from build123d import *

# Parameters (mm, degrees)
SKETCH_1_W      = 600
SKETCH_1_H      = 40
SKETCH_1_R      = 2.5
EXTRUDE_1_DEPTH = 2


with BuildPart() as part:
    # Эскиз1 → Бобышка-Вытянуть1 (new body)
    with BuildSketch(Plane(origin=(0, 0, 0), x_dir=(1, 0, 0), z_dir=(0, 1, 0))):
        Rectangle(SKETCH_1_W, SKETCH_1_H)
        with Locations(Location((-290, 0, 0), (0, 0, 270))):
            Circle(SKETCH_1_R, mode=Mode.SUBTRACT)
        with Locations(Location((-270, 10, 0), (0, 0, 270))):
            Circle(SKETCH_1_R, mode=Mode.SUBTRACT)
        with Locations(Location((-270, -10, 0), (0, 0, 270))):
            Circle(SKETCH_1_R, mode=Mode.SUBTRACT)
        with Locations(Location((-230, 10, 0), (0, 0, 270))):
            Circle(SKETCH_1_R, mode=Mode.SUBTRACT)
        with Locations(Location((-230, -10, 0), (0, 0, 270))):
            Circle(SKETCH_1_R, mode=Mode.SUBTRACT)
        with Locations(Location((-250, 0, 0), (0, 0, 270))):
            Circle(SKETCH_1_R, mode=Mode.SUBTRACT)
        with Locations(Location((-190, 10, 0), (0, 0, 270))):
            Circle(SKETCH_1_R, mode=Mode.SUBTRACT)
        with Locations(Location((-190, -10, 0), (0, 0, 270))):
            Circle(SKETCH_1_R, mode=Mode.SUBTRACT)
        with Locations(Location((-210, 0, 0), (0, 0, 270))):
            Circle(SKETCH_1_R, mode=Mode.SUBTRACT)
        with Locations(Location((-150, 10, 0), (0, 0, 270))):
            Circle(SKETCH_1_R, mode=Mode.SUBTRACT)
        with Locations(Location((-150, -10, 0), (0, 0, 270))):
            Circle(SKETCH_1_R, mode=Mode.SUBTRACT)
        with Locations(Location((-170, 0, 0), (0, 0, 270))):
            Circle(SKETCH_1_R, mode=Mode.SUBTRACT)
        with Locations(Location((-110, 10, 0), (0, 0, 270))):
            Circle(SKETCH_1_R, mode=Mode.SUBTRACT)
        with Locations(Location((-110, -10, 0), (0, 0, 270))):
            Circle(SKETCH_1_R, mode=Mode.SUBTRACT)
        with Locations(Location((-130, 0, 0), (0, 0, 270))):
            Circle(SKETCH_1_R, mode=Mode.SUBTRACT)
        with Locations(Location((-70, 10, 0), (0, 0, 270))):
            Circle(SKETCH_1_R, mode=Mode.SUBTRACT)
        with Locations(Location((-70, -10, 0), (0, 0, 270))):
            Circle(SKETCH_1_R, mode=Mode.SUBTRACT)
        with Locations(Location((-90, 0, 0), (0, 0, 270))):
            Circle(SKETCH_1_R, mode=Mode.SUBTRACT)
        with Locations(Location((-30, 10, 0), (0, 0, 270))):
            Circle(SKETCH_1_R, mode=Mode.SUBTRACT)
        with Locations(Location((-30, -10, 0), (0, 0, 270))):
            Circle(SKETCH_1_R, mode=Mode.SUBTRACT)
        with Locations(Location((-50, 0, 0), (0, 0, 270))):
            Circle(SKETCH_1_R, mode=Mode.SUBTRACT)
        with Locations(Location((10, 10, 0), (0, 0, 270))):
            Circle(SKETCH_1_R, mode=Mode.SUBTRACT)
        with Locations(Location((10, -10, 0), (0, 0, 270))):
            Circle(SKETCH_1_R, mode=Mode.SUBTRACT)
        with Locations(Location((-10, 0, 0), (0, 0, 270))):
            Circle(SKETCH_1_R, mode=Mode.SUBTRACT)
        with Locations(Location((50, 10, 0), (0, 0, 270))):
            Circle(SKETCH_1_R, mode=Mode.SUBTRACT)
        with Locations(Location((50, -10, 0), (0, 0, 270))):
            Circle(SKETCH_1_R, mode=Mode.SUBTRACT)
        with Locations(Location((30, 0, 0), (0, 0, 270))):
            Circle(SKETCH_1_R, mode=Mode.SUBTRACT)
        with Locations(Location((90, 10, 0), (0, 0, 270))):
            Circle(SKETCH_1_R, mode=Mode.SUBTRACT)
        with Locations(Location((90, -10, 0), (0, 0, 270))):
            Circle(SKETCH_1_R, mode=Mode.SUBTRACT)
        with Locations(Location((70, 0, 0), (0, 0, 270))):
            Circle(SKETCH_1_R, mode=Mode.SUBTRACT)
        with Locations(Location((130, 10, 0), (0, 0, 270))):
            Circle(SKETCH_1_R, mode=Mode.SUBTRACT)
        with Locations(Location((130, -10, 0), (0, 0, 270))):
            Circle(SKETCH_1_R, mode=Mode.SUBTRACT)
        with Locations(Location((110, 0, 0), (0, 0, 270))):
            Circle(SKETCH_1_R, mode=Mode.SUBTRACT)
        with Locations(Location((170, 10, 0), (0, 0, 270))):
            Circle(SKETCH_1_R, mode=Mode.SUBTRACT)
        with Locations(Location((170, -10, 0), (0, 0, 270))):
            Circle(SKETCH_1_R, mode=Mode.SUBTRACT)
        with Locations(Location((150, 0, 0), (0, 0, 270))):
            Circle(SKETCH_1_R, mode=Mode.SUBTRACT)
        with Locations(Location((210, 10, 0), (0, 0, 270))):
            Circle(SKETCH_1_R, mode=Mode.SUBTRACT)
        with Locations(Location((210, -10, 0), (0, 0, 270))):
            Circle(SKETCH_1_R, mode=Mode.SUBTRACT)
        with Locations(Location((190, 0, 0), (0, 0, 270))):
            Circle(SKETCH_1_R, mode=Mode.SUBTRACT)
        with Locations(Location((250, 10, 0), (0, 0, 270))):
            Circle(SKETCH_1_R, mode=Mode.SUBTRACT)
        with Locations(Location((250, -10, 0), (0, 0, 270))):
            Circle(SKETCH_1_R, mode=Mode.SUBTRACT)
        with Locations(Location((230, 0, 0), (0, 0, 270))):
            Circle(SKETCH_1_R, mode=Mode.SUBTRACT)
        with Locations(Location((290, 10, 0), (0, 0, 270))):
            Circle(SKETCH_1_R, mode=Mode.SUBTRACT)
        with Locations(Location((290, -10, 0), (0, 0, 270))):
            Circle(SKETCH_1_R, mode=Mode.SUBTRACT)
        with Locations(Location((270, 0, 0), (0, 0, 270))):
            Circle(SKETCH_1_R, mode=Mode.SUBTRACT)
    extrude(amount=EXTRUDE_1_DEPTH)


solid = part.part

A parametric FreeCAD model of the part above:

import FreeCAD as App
import Part
import Sketcher

V = App.Vector


def add_polygon(sketch, points):
    """Adds a closed chain of lines whose ends are joined by coincident constraints."""
    first, n = sketch.GeometryCount, len(points)
    for a, b in zip(points, points[1:] + points[:1]):
        sketch.addGeometry(Part.LineSegment(App.Vector(*a, 0), App.Vector(*b, 0)), False)
    for i in range(n):
        sketch.addConstraint(Sketcher.Constraint("Coincident", first + i, 2, first + (i + 1) % n, 1))

doc = App.newDocument("Part")
params = doc.addObject("Spreadsheet::Sheet", "Params")
for row, (alias, value) in enumerate([
    ("sketch1_diameter", "5 mm"),
    ("sketch1_width", "600 mm"),
    ("sketch1_height", "40 mm"),
    ("pad1_length", "2 mm"),
], start=1):
    params.set(f"A{row}", alias)
    params.set(f"B{row}", "=" + value)
    params.setAlias(f"B{row}", alias)

body = doc.addObject("PartDesign::Body", "Body")

# Sketch on XZ plane
sketch1 = body.newObject("Sketcher::SketchObject", "Sketch")
sketch1.AttachmentSupport = (doc.getObject("XZ_Plane"), [""])
sketch1.MapMode = "FlatFace"
add_polygon(sketch1, [(-300, -20), (-300, 20), (300, 20), (300, -20)])  # lines 0-3
sketch1.addGeometry(Part.Circle(V(-270, 10, 0), V(0, 0, 1), 2.5), False)  # 4
sketch1.addGeometry(Part.Circle(V(-230, 10, 0), V(0, 0, 1), 2.5), False)  # 5
sketch1.addGeometry(Part.Circle(V(-190, 10, 0), V(0, 0, 1), 2.5), False)  # 6
sketch1.addGeometry(Part.Circle(V(-150, 10, 0), V(0, 0, 1), 2.5), False)  # 7
sketch1.addGeometry(Part.Circle(V(-110, 10, 0), V(0, 0, 1), 2.5), False)  # 8
sketch1.addGeometry(Part.Circle(V(-70, 10, 0), V(0, 0, 1), 2.5), False)  # 9
sketch1.addGeometry(Part.Circle(V(-30, 10, 0), V(0, 0, 1), 2.5), False)  # 10
sketch1.addGeometry(Part.Circle(V(10, 10, 0), V(0, 0, 1), 2.5), False)  # 11
sketch1.addGeometry(Part.Circle(V(50, 10, 0), V(0, 0, 1), 2.5), False)  # 12
sketch1.addGeometry(Part.Circle(V(90, 10, 0), V(0, 0, 1), 2.5), False)  # 13
sketch1.addGeometry(Part.Circle(V(130, 10, 0), V(0, 0, 1), 2.5), False)  # 14
sketch1.addGeometry(Part.Circle(V(170, 10, 0), V(0, 0, 1), 2.5), False)  # 15
sketch1.addGeometry(Part.Circle(V(210, 10, 0), V(0, 0, 1), 2.5), False)  # 16
sketch1.addGeometry(Part.Circle(V(250, 10, 0), V(0, 0, 1), 2.5), False)  # 17
sketch1.addGeometry(Part.Circle(V(290, 10, 0), V(0, 0, 1), 2.5), False)  # 18
sketch1.addGeometry(Part.Circle(V(-290, 0, 0), V(0, 0, 1), 2.5), False)  # 19
sketch1.addGeometry(Part.Circle(V(-250, 0, 0), V(0, 0, 1), 2.5), False)  # 20
sketch1.addGeometry(Part.Circle(V(-210, 0, 0), V(0, 0, 1), 2.5), False)  # 21
sketch1.addGeometry(Part.Circle(V(-170, 0, 0), V(0, 0, 1), 2.5), False)  # 22
sketch1.addGeometry(Part.Circle(V(-130, 0, 0), V(0, 0, 1), 2.5), False)  # 23
sketch1.addGeometry(Part.Circle(V(-90, 0, 0), V(0, 0, 1), 2.5), False)  # 24
sketch1.addGeometry(Part.Circle(V(-50, 0, 0), V(0, 0, 1), 2.5), False)  # 25
sketch1.addGeometry(Part.Circle(V(-10, 0, 0), V(0, 0, 1), 2.5), False)  # 26
sketch1.addGeometry(Part.Circle(V(-270, -10, 0), V(0, 0, 1), 2.5), False)  # 27
sketch1.addGeometry(Part.Circle(V(-230, -10, 0), V(0, 0, 1), 2.5), False)  # 28
sketch1.addGeometry(Part.Circle(V(-190, -10, 0), V(0, 0, 1), 2.5), False)  # 29
sketch1.addGeometry(Part.Circle(V(-150, -10, 0), V(0, 0, 1), 2.5), False)  # 30
sketch1.addGeometry(Part.Circle(V(-110, -10, 0), V(0, 0, 1), 2.5), False)  # 31
sketch1.addGeometry(Part.Circle(V(-70, -10, 0), V(0, 0, 1), 2.5), False)  # 32
sketch1.addGeometry(Part.Circle(V(-30, -10, 0), V(0, 0, 1), 2.5), False)  # 33
sketch1.addGeometry(Part.Circle(V(30, 0, 0), V(0, 0, 1), 2.5), False)  # 34
sketch1.addGeometry(Part.Circle(V(70, 0, 0), V(0, 0, 1), 2.5), False)  # 35
sketch1.addGeometry(Part.Circle(V(110, 0, 0), V(0, 0, 1), 2.5), False)  # 36
sketch1.addGeometry(Part.Circle(V(150, 0, 0), V(0, 0, 1), 2.5), False)  # 37
sketch1.addGeometry(Part.Circle(V(190, 0, 0), V(0, 0, 1), 2.5), False)  # 38
sketch1.addGeometry(Part.Circle(V(230, 0, 0), V(0, 0, 1), 2.5), False)  # 39
sketch1.addGeometry(Part.Circle(V(270, 0, 0), V(0, 0, 1), 2.5), False)  # 40
sketch1.addGeometry(Part.Circle(V(10, -10, 0), V(0, 0, 1), 2.5), False)  # 41
sketch1.addGeometry(Part.Circle(V(50, -10, 0), V(0, 0, 1), 2.5), False)  # 42
sketch1.addGeometry(Part.Circle(V(90, -10, 0), V(0, 0, 1), 2.5), False)  # 43
sketch1.addGeometry(Part.Circle(V(130, -10, 0), V(0, 0, 1), 2.5), False)  # 44
sketch1.addGeometry(Part.Circle(V(170, -10, 0), V(0, 0, 1), 2.5), False)  # 45
sketch1.addGeometry(Part.Circle(V(210, -10, 0), V(0, 0, 1), 2.5), False)  # 46
sketch1.addGeometry(Part.Circle(V(250, -10, 0), V(0, 0, 1), 2.5), False)  # 47
sketch1.addGeometry(Part.Circle(V(290, -10, 0), V(0, 0, 1), 2.5), False)  # 48
sketch1.addConstraint([
    Sketcher.Constraint("Vertical", 0),
    Sketcher.Constraint("Horizontal", 1),
    Sketcher.Constraint("Vertical", 2),
    Sketcher.Constraint("Horizontal", 3),
    Sketcher.Constraint("Equal", 4, 5),
    Sketcher.Constraint("Equal", 5, 6),
    Sketcher.Constraint("Equal", 6, 7),
    Sketcher.Constraint("Equal", 7, 8),
    Sketcher.Constraint("Equal", 8, 9),
    Sketcher.Constraint("Equal", 9, 10),
    Sketcher.Constraint("Equal", 10, 11),
    Sketcher.Constraint("Equal", 11, 12),
    Sketcher.Constraint("Equal", 12, 13),
    Sketcher.Constraint("Equal", 13, 14),
    Sketcher.Constraint("Equal", 14, 15),
    Sketcher.Constraint("Equal", 15, 16),
    Sketcher.Constraint("Equal", 16, 17),
    Sketcher.Constraint("Equal", 17, 18),
    Sketcher.Constraint("Equal", 18, 19),
    Sketcher.Constraint("Equal", 19, 20),
    Sketcher.Constraint("Equal", 20, 21),
    Sketcher.Constraint("Equal", 21, 22),
    Sketcher.Constraint("Equal", 22, 23),
    Sketcher.Constraint("Equal", 23, 24),
    Sketcher.Constraint("Equal", 24, 25),
    Sketcher.Constraint("Equal", 25, 26),
    Sketcher.Constraint("Equal", 26, 27),
    Sketcher.Constraint("Equal", 27, 28),
    Sketcher.Constraint("Equal", 28, 29),
    Sketcher.Constraint("Equal", 29, 30),
    Sketcher.Constraint("Equal", 30, 31),
    Sketcher.Constraint("Equal", 31, 32),
    Sketcher.Constraint("Equal", 32, 33),
    Sketcher.Constraint("Equal", 33, 34),
    Sketcher.Constraint("Equal", 34, 35),
    Sketcher.Constraint("Equal", 35, 36),
    Sketcher.Constraint("Equal", 36, 37),
    Sketcher.Constraint("Equal", 37, 38),
    Sketcher.Constraint("Equal", 38, 39),
    Sketcher.Constraint("Equal", 39, 40),
    Sketcher.Constraint("Equal", 40, 41),
    Sketcher.Constraint("Equal", 41, 42),
    Sketcher.Constraint("Equal", 42, 43),
    Sketcher.Constraint("Equal", 43, 44),
    Sketcher.Constraint("Equal", 44, 45),
    Sketcher.Constraint("Equal", 45, 46),
    Sketcher.Constraint("Equal", 46, 47),
    Sketcher.Constraint("Equal", 47, 48),
    Sketcher.Constraint("Symmetric", 0, 2, 2, 2, -1, 1),
    Sketcher.Constraint("Symmetric", 4, 3, 27, 3, -1),
    Sketcher.Constraint("Symmetric", 5, 3, 28, 3, -1),
    Sketcher.Constraint("Symmetric", 6, 3, 29, 3, -1),
    Sketcher.Constraint("Symmetric", 7, 3, 30, 3, -1),
    Sketcher.Constraint("Symmetric", 8, 3, 31, 3, -1),
    Sketcher.Constraint("Symmetric", 9, 3, 32, 3, -1),
    Sketcher.Constraint("Symmetric", 10, 3, 33, 3, -1),
    Sketcher.Constraint("Symmetric", 11, 3, 41, 3, -1),
    Sketcher.Constraint("Symmetric", 12, 3, 42, 3, -1),
    Sketcher.Constraint("Symmetric", 13, 3, 43, 3, -1),
    Sketcher.Constraint("Symmetric", 14, 3, 44, 3, -1),
    Sketcher.Constraint("Symmetric", 15, 3, 45, 3, -1),
    Sketcher.Constraint("Symmetric", 16, 3, 46, 3, -1),
    Sketcher.Constraint("Symmetric", 17, 3, 47, 3, -1),
    Sketcher.Constraint("Symmetric", 18, 3, 48, 3, -1),
    Sketcher.Constraint("PointOnObject", 19, 3, -1),
    Sketcher.Constraint("PointOnObject", 20, 3, -1),
    Sketcher.Constraint("PointOnObject", 21, 3, -1),
    Sketcher.Constraint("PointOnObject", 22, 3, -1),
    Sketcher.Constraint("PointOnObject", 23, 3, -1),
    Sketcher.Constraint("PointOnObject", 24, 3, -1),
    Sketcher.Constraint("PointOnObject", 25, 3, -1),
    Sketcher.Constraint("PointOnObject", 26, 3, -1),
    Sketcher.Constraint("PointOnObject", 34, 3, -1),
    Sketcher.Constraint("PointOnObject", 35, 3, -1),
    Sketcher.Constraint("PointOnObject", 36, 3, -1),
    Sketcher.Constraint("PointOnObject", 37, 3, -1),
    Sketcher.Constraint("PointOnObject", 38, 3, -1),
    Sketcher.Constraint("PointOnObject", 39, 3, -1),
    Sketcher.Constraint("PointOnObject", 40, 3, -1),
    Sketcher.Constraint("Horizontal", 4, 3, 5, 3),
    Sketcher.Constraint("Horizontal", 5, 3, 6, 3),
    Sketcher.Constraint("Horizontal", 6, 3, 7, 3),
    Sketcher.Constraint("Horizontal", 7, 3, 8, 3),
    Sketcher.Constraint("Horizontal", 8, 3, 9, 3),
    Sketcher.Constraint("Horizontal", 9, 3, 10, 3),
    Sketcher.Constraint("Horizontal", 10, 3, 11, 3),
    Sketcher.Constraint("Horizontal", 11, 3, 12, 3),
    Sketcher.Constraint("Horizontal", 12, 3, 13, 3),
    Sketcher.Constraint("Horizontal", 13, 3, 14, 3),
    Sketcher.Constraint("Horizontal", 14, 3, 15, 3),
    Sketcher.Constraint("Horizontal", 15, 3, 16, 3),
    Sketcher.Constraint("Horizontal", 16, 3, 17, 3),
    Sketcher.Constraint("Horizontal", 17, 3, 18, 3),
    Sketcher.Constraint("Diameter", 4, 5.0),
    Sketcher.Constraint("DistanceX", 1, 1, 1, 2, 600.0),
    Sketcher.Constraint("DistanceY", 0, 1, 0, 2, 40.0),
    Sketcher.Constraint("DistanceX", 4, 3, -1, 1, 270.0),
    Sketcher.Constraint("DistanceY", -1, 1, 4, 3, 10.0),
    Sketcher.Constraint("DistanceX", 5, 3, -1, 1, 230.0),
    Sketcher.Constraint("DistanceX", 6, 3, -1, 1, 190.0),
    Sketcher.Constraint("DistanceX", 7, 3, -1, 1, 150.0),
    Sketcher.Constraint("DistanceX", 8, 3, -1, 1, 110.0),
    Sketcher.Constraint("DistanceX", 9, 3, -1, 1, 70.0),
    Sketcher.Constraint("DistanceX", 10, 3, -1, 1, 30.0),
    Sketcher.Constraint("DistanceX", -1, 1, 11, 3, 10.0),
    Sketcher.Constraint("DistanceX", -1, 1, 12, 3, 50.0),
    Sketcher.Constraint("DistanceX", -1, 1, 13, 3, 90.0),
    Sketcher.Constraint("DistanceX", -1, 1, 14, 3, 130.0),
    Sketcher.Constraint("DistanceX", -1, 1, 15, 3, 170.0),
    Sketcher.Constraint("DistanceX", -1, 1, 16, 3, 210.0),
    Sketcher.Constraint("DistanceX", -1, 1, 17, 3, 250.0),
    Sketcher.Constraint("DistanceX", -1, 1, 18, 3, 290.0),
    Sketcher.Constraint("DistanceX", 19, 3, -1, 1, 290.0),
    Sketcher.Constraint("DistanceX", 20, 3, -1, 1, 250.0),
    Sketcher.Constraint("DistanceX", 21, 3, -1, 1, 210.0),
    Sketcher.Constraint("DistanceX", 22, 3, -1, 1, 170.0),
    Sketcher.Constraint("DistanceX", 23, 3, -1, 1, 130.0),
    Sketcher.Constraint("DistanceX", 24, 3, -1, 1, 90.0),
    Sketcher.Constraint("DistanceX", 25, 3, -1, 1, 50.0),
    Sketcher.Constraint("DistanceX", 26, 3, -1, 1, 10.0),
    Sketcher.Constraint("DistanceX", -1, 1, 34, 3, 30.0),
    Sketcher.Constraint("DistanceX", -1, 1, 35, 3, 70.0),
    Sketcher.Constraint("DistanceX", -1, 1, 36, 3, 110.0),
    Sketcher.Constraint("DistanceX", -1, 1, 37, 3, 150.0),
    Sketcher.Constraint("DistanceX", -1, 1, 38, 3, 190.0),
    Sketcher.Constraint("DistanceX", -1, 1, 39, 3, 230.0),
    Sketcher.Constraint("DistanceX", -1, 1, 40, 3, 270.0),
])
sketch1.setExpression("Constraints[97]", "Params.sketch1_diameter")
sketch1.setExpression("Constraints[98]", "Params.sketch1_width")
sketch1.setExpression("Constraints[99]", "Params.sketch1_height")
pad1 = body.newObject("PartDesign::Pad", "Pad")
pad1.Profile = sketch1
pad1.setExpression("Length", "Params.pad1_length")
pad1.Reversed = True

doc.recompute()
